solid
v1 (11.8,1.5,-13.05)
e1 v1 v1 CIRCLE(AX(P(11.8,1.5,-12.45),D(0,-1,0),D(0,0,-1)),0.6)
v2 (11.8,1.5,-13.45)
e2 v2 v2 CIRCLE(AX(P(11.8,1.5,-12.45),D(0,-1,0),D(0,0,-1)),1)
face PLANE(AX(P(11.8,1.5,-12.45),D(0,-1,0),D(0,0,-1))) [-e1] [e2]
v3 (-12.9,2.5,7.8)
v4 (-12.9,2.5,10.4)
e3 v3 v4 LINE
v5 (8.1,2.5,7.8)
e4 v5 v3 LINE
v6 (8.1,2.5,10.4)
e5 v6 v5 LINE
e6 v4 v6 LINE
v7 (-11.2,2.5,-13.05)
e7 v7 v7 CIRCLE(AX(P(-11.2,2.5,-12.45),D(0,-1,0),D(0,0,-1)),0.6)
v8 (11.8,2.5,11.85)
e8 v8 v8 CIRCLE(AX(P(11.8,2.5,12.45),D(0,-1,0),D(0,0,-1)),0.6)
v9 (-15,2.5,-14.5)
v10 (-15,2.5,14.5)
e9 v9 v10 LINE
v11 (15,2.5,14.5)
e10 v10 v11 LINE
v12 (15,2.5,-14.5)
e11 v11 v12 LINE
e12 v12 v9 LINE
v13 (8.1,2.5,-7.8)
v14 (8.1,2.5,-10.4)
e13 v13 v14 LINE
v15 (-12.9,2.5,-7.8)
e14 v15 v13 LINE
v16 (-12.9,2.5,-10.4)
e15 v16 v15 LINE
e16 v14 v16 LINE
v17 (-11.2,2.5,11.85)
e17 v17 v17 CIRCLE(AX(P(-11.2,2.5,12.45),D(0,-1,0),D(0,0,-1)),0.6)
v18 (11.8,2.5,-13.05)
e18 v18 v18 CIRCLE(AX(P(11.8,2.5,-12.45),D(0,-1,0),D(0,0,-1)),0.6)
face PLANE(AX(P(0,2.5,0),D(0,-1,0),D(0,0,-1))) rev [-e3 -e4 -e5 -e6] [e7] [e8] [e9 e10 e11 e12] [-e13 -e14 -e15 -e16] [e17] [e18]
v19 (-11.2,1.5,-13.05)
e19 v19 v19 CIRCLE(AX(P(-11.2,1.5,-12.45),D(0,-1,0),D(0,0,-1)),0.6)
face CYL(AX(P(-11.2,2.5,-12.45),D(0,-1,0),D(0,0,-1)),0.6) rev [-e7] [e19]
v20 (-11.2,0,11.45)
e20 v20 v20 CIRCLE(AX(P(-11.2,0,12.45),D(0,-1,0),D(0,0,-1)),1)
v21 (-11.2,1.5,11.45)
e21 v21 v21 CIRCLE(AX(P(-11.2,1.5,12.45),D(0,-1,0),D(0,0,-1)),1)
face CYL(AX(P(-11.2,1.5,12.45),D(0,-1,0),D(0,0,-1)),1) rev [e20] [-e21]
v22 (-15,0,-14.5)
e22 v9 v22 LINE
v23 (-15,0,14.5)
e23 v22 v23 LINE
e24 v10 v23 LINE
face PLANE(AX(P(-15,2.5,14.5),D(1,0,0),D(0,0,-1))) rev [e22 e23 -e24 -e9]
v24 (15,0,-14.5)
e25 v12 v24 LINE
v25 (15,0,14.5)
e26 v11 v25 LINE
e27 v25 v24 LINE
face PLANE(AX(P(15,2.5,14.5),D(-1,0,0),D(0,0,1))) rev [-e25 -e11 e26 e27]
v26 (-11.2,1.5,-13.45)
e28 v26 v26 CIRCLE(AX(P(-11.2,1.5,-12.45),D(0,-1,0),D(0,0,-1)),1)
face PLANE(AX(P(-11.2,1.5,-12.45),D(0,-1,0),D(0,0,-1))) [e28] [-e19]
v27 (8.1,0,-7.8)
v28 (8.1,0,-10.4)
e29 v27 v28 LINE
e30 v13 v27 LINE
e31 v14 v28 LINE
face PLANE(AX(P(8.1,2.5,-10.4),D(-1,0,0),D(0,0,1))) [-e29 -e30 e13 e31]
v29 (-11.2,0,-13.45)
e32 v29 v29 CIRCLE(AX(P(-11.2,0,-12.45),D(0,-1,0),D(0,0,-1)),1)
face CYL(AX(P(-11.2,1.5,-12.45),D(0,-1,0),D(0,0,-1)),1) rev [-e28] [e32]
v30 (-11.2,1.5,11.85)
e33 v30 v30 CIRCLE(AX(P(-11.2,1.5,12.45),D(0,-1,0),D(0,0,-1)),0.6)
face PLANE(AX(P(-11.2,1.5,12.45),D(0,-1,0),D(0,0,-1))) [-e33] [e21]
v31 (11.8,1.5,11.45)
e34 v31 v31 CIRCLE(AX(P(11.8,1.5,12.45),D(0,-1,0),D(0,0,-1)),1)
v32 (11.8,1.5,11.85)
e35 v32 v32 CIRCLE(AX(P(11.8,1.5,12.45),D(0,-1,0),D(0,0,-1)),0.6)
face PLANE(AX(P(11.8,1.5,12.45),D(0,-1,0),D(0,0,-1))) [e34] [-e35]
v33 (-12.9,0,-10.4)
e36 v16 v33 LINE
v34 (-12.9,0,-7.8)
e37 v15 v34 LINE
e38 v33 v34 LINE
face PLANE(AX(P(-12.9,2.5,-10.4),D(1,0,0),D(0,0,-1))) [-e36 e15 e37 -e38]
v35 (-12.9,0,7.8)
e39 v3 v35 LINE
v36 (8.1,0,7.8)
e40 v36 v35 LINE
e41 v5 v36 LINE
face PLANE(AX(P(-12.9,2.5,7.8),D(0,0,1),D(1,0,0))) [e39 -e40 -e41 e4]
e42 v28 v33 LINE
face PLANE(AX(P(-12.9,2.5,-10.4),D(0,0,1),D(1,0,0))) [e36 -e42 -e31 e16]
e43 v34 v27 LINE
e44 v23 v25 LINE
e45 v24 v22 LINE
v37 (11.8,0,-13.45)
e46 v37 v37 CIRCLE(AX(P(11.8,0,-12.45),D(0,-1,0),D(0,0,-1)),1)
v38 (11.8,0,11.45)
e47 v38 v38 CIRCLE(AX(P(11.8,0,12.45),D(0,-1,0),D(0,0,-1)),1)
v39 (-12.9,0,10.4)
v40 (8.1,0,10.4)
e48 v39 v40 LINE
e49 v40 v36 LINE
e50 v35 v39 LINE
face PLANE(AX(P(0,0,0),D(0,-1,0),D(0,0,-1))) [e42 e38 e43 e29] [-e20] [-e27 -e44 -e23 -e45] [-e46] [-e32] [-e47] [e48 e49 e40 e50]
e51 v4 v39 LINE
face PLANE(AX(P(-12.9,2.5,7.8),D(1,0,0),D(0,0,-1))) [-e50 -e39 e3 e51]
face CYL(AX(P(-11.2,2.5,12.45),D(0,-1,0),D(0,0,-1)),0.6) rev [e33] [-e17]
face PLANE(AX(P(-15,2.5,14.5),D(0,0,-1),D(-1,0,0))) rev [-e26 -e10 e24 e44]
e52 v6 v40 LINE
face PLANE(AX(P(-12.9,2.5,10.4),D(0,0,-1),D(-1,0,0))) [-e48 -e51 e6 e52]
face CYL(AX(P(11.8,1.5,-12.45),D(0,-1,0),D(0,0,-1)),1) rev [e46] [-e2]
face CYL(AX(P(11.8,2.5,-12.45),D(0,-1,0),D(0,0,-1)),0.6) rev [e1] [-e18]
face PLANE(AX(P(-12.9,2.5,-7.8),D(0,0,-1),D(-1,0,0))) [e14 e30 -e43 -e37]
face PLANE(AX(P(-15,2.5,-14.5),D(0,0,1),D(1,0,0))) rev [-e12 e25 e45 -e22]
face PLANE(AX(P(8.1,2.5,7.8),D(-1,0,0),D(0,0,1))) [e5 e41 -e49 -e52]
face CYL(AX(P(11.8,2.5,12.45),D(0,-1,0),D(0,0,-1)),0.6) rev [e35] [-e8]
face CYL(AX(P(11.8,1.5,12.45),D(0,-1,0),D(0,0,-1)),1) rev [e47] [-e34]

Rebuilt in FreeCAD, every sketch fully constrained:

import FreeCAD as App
import Part
import Sketcher


def add_polygon(sketch, points):
    """Adds a closed chain of lines whose ends are joined by coincident constraints."""
    first, n = sketch.GeometryCount, len(points)
    for a, b in zip(points, points[1:] + points[:1]):
        sketch.addGeometry(Part.LineSegment(App.Vector(*a, 0), App.Vector(*b, 0)), False)
    for i in range(n):
        sketch.addConstraint(Sketcher.Constraint("Coincident", first + i, 2, first + (i + 1) % n, 1))

doc = App.newDocument("Part")
params = doc.addObject("Spreadsheet::Sheet", "Params")
for row, (alias, value) in enumerate([
    ("sketch1_width", "30 mm"),
    ("sketch1_width2", "21 mm"),
    ("sketch1_height", "29 mm"),
    ("sketch1_height2", "2.6 mm"),
    ("pad1_length", "2.5 mm"),
    ("sketch2_diameter", "1.2 mm"),
    ("sketch3_diameter", "2 mm"),
    ("sketch3_diameter2", "1.2 mm"),
    ("pocket2_length", "1.5 mm"),
], start=1):
    params.set(f"A{row}", alias)
    params.set(f"B{row}", "=" + value)
    params.setAlias(f"B{row}", alias)

body = doc.addObject("PartDesign::Body", "Body")

# Sketch on XZ plane
sketch1 = body.newObject("Sketcher::SketchObject", "Sketch")
sketch1.AttachmentSupport = (doc.getObject("XZ_Plane"), [""])
sketch1.MapMode = "FlatFace"
add_polygon(sketch1, [(-15, -14.5), (-15, 14.5), (15, 14.5), (15, -14.5)])  # lines 0-3
add_polygon(sketch1, [(8.1, 10.4), (-12.9, 10.4), (-12.9, 7.8), (8.1, 7.8)])  # lines 4-7
add_polygon(sketch1, [(8.1, -7.8), (-12.9, -7.8), (-12.9, -10.4), (8.1, -10.4)])  # lines 8-11
sketch1.addConstraint(Sketcher.Constraint("Vertical", 0))
sketch1.addConstraint(Sketcher.Constraint("Horizontal", 1))
sketch1.addConstraint(Sketcher.Constraint("Vertical", 2))
sketch1.addConstraint(Sketcher.Constraint("Horizontal", 3))
sketch1.addConstraint(Sketcher.Constraint("Horizontal", 4))
sketch1.addConstraint(Sketcher.Constraint("Vertical", 5))
sketch1.addConstraint(Sketcher.Constraint("Horizontal", 6))
sketch1.addConstraint(Sketcher.Constraint("Vertical", 7))
sketch1.addConstraint(Sketcher.Constraint("Horizontal", 8))
sketch1.addConstraint(Sketcher.Constraint("Vertical", 9))
sketch1.addConstraint(Sketcher.Constraint("Horizontal", 10))
sketch1.addConstraint(Sketcher.Constraint("Vertical", 11))
sketch1.addConstraint(Sketcher.Constraint("Symmetric", 0, 2, 2, 2, -1, 1))
sketch1.addConstraint(Sketcher.Constraint("Symmetric", 5, 2, 8, 2, -1))
sketch1.addConstraint(Sketcher.Constraint("Symmetric", 7, 2, 10, 2, -1))
sketch1.addConstraint(Sketcher.Constraint("DistanceX", 1, 1, 1, 2, 30.0))
sketch1.addConstraint(Sketcher.Constraint("DistanceX", 4, 2, 4, 1, 21.0))
sketch1.addConstraint(Sketcher.Constraint("DistanceY", 0, 1, 0, 2, 29.0))
sketch1.addConstraint(Sketcher.Constraint("DistanceY", 5, 2, 5, 1, 2.6))
sketch1.addConstraint(Sketcher.Constraint("DistanceX", 4, 2, -1, 1, 12.9))
sketch1.addConstraint(Sketcher.Constraint("DistanceY", -1, 1, 4, 2, 10.4))
sketch1.setExpression("Constraints[27]", "Params.sketch1_width")
sketch1.setExpression("Constraints[28]", "Params.sketch1_width2")
sketch1.setExpression("Constraints[29]", "Params.sketch1_height")
sketch1.setExpression("Constraints[30]", "Params.sketch1_height2")
pad1 = body.newObject("PartDesign::Pad", "Pad")
pad1.Profile = sketch1
pad1.setExpression("Length", "Params.pad1_length")
pad1.Reversed = True

# Sketch on XZ plane
sketch2 = body.newObject("Sketcher::SketchObject", "Sketch001")
sketch2.AttachmentSupport = (doc.getObject("XZ_Plane"), [""])
sketch2.MapMode = "FlatFace"
sketch2.addGeometry(Part.Circle(App.Vector(-11.2, -12.4, 0), App.Vector(0, 0, 1), 0.6), False)
sketch2.addGeometry(Part.Circle(App.Vector(-11.2, 12.4, 0), App.Vector(0, 0, 1), 0.6), False)
sketch2.addGeometry(Part.Circle(App.Vector(11.8, 12.4, 0), App.Vector(0, 0, 1), 0.6), False)
sketch2.addGeometry(Part.Circle(App.Vector(11.8, -12.4, 0), App.Vector(0, 0, 1), 0.6), False)
sketch2.addConstraint(Sketcher.Constraint("Equal", 0, 1))
sketch2.addConstraint(Sketcher.Constraint("Equal", 1, 2))
sketch2.addConstraint(Sketcher.Constraint("Equal", 2, 3))
sketch2.addConstraint(Sketcher.Constraint("Symmetric", 0, 3, 1, 3, -1))
sketch2.addConstraint(Sketcher.Constraint("Symmetric", 2, 3, 3, 3, -1))
sketch2.addConstraint(Sketcher.Constraint("Horizontal", 1, 3, 2, 3))
sketch2.addConstraint(Sketcher.Constraint("Diameter", 0, 1.2))
sketch2.addConstraint(Sketcher.Constraint("DistanceX", 1, 3, 2, 3, 23.0))
sketch2.addConstraint(Sketcher.Constraint("DistanceX", 0, 3, -1, 1, 11.2))
sketch2.addConstraint(Sketcher.Constraint("DistanceY", 0, 3, 1, 3, 24.9))
sketch2.setExpression("Constraints[6]", "Params.sketch2_diameter")
pocket1 = body.newObject("PartDesign::Pocket", "Pocket")
pocket1.Profile = sketch2
pocket1.Type = "ThroughAll"

# Sketch on XZ plane
sketch3 = body.newObject("Sketcher::SketchObject", "Sketch002")
sketch3.AttachmentSupport = (doc.getObject("XZ_Plane"), [""])
sketch3.MapMode = "FlatFace"
sketch3.addGeometry(Part.Circle(App.Vector(-11.2, -12.4, 0), App.Vector(0, 0, 1), 1), False)
sketch3.addGeometry(Part.Circle(App.Vector(-11.2, -12.4, 0), App.Vector(0, 0, 1), 0.6), False)
sketch3.addGeometry(Part.Circle(App.Vector(-11.2, 12.4, 0), App.Vector(0, 0, 1), 1), False)
sketch3.addGeometry(Part.Circle(App.Vector(-11.2, 12.4, 0), App.Vector(0, 0, 1), 0.6), False)
sketch3.addGeometry(Part.Circle(App.Vector(11.8, 12.4, 0), App.Vector(0, 0, 1), 1), False)
sketch3.addGeometry(Part.Circle(App.Vector(11.8, 12.4, 0), App.Vector(0, 0, 1), 0.6), False)
sketch3.addGeometry(Part.Circle(App.Vector(11.8, -12.4, 0), App.Vector(0, 0, 1), 1), False)
sketch3.addGeometry(Part.Circle(App.Vector(11.8, -12.4, 0), App.Vector(0, 0, 1), 0.6), False)
sketch3.addConstraint(Sketcher.Constraint("Coincident", 1, 3, 0, 3))
sketch3.addConstraint(Sketcher.Constraint("Coincident", 3, 3, 2, 3))
sketch3.addConstraint(Sketcher.Constraint("Coincident", 5, 3, 4, 3))
sketch3.addConstraint(Sketcher.Constraint("Coincident", 7, 3, 6, 3))
sketch3.addConstraint(Sketcher.Constraint("Equal", 0, 2))
sketch3.addConstraint(Sketcher.Constraint("Equal", 1, 3))
sketch3.addConstraint(Sketcher.Constraint("Equal", 2, 4))
sketch3.addConstraint(Sketcher.Constraint("Equal", 3, 5))
sketch3.addConstraint(Sketcher.Constraint("Equal", 4, 6))
sketch3.addConstraint(Sketcher.Constraint("Equal", 5, 7))
sketch3.addConstraint(Sketcher.Constraint("Symmetric", 0, 3, 2, 3, -1))
sketch3.addConstraint(Sketcher.Constraint("Symmetric", 4, 3, 6, 3, -1))
sketch3.addConstraint(Sketcher.Constraint("Horizontal", 3, 3, 4, 3))
sketch3.addConstraint(Sketcher.Constraint("Diameter", 0, 2.0))
sketch3.addConstraint(Sketcher.Constraint("Diameter", 1, 1.2))
sketch3.addConstraint(Sketcher.Constraint("DistanceX", 2, 3, 4, 3, 23.0))
sketch3.addConstraint(Sketcher.Constraint("DistanceX", 0, 3, -1, 1, 11.2))
sketch3.addConstraint(Sketcher.Constraint("DistanceY", 0, 3, 2, 3, 24.9))
sketch3.setExpression("Constraints[13]", "Params.sketch3_diameter")
sketch3.setExpression("Constraints[14]", "Params.sketch3_diameter2")
pocket2 = body.newObject("PartDesign::Pocket", "Pocket001")
pocket2.Profile = sketch3
pocket2.setExpression("Length", "Params.pocket2_length")

doc.recompute()
